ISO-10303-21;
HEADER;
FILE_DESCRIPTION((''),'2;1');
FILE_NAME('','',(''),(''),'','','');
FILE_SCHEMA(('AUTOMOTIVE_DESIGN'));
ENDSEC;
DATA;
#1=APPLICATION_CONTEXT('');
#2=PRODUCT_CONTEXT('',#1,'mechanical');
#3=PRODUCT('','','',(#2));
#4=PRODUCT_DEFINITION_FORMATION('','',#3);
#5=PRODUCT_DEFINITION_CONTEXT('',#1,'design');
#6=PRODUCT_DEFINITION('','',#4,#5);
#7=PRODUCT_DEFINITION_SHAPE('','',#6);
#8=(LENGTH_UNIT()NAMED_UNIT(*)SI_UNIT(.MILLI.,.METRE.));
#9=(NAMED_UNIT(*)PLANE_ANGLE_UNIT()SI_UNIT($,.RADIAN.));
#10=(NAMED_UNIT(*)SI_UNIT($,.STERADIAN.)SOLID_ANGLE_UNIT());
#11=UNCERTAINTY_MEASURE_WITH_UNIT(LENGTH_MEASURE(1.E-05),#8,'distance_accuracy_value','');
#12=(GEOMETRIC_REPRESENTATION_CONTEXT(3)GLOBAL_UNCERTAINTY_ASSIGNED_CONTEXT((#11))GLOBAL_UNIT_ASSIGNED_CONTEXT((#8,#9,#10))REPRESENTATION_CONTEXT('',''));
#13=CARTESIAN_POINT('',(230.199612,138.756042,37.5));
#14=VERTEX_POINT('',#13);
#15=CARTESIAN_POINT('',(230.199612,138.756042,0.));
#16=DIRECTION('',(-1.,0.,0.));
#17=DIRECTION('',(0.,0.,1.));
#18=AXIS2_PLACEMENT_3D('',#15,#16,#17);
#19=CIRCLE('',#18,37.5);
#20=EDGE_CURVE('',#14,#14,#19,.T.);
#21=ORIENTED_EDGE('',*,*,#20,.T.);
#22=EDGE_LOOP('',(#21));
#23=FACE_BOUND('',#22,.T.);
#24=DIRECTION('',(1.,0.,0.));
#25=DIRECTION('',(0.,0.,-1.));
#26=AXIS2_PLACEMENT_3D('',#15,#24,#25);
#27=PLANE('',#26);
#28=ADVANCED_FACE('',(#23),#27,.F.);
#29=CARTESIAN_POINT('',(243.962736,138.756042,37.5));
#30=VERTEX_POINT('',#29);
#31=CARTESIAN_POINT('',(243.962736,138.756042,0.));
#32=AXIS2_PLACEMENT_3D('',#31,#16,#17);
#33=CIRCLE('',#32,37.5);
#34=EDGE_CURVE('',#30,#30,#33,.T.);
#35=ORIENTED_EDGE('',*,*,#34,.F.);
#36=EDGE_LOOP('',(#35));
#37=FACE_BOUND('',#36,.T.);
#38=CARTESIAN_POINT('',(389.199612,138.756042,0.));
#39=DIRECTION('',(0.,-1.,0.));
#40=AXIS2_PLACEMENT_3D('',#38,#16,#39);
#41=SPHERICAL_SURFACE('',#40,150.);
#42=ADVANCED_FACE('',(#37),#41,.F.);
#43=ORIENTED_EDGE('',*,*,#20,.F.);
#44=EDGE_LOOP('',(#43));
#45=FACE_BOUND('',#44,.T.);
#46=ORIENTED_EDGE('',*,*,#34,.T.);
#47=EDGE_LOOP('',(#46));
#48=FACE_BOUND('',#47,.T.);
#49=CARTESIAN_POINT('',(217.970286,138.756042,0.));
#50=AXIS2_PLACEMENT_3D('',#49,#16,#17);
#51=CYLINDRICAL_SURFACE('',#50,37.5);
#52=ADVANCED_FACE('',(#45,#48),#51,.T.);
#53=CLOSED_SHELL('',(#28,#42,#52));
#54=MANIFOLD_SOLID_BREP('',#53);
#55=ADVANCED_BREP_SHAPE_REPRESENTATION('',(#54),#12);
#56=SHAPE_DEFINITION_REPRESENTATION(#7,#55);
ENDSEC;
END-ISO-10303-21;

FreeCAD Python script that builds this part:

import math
import FreeCAD as App
import Part
import Sketcher

doc = App.newDocument("Part")
body = doc.addObject("PartDesign::Body", "Body")

# Sketch on XY plane
sketch1 = body.newObject("Sketcher::SketchObject", "Sketch")
sketch1.AttachmentSupport = (doc.getObject("XY_Plane"), [""])
sketch1.MapMode = "FlatFace"
sketch1.addGeometry([
    Part.LineSegment(App.Vector(230, 176, 0), App.Vector(230, 139, 0)),
    Part.LineSegment(App.Vector(230, 139, 0), App.Vector(239, 139, 0)),
    Part.ArcOfCircle(Part.Circle(App.Vector(389, 139, 0), App.Vector(0, 0, 1), 150), math.radians(165.52), math.radians(180)),
    Part.LineSegment(App.Vector(244, 176, 0), App.Vector(230, 176, 0)),
], False)
sketch1.addGeometry(Part.LineSegment(App.Vector(230, 139, 0), App.Vector(389, 139, 0)), True)  # axis
sketch1.addConstraint([
    Sketcher.Constraint("Coincident", 0, 2, 1, 1),
    Sketcher.Constraint("Coincident", 1, 2, 2, 2),
    Sketcher.Constraint("Coincident", 2, 1, 3, 1),
    Sketcher.Constraint("Coincident", 3, 2, 0, 1),
    Sketcher.Constraint("Vertical", 0),
    Sketcher.Constraint("Horizontal", 1),
    Sketcher.Constraint("Horizontal", 3),
    Sketcher.Constraint("Horizontal", 4),
    Sketcher.Constraint("Coincident", 4, 1, 0, 2),
    Sketcher.Constraint("Coincident", 4, 2, 2, 3),
    Sketcher.Constraint("Radius", 2, 150.0),
    Sketcher.Constraint("DistanceX", 1, 1, 1, 2, 9.0),
    Sketcher.Constraint("DistanceY", 0, 2, 0, 1, 37.5),
    Sketcher.Constraint("DistanceX", -1, 1, 2, 3, 389.199612),
    Sketcher.Constraint("DistanceY", -1, 1, 2, 3, 138.756042),
])
revolution = body.newObject("PartDesign::Revolution", "Revolution")
revolution.Profile = sketch1
revolution.ReferenceAxis = (sketch1, ["Axis0"])
revolution.Angle = 360

doc.recompute()
